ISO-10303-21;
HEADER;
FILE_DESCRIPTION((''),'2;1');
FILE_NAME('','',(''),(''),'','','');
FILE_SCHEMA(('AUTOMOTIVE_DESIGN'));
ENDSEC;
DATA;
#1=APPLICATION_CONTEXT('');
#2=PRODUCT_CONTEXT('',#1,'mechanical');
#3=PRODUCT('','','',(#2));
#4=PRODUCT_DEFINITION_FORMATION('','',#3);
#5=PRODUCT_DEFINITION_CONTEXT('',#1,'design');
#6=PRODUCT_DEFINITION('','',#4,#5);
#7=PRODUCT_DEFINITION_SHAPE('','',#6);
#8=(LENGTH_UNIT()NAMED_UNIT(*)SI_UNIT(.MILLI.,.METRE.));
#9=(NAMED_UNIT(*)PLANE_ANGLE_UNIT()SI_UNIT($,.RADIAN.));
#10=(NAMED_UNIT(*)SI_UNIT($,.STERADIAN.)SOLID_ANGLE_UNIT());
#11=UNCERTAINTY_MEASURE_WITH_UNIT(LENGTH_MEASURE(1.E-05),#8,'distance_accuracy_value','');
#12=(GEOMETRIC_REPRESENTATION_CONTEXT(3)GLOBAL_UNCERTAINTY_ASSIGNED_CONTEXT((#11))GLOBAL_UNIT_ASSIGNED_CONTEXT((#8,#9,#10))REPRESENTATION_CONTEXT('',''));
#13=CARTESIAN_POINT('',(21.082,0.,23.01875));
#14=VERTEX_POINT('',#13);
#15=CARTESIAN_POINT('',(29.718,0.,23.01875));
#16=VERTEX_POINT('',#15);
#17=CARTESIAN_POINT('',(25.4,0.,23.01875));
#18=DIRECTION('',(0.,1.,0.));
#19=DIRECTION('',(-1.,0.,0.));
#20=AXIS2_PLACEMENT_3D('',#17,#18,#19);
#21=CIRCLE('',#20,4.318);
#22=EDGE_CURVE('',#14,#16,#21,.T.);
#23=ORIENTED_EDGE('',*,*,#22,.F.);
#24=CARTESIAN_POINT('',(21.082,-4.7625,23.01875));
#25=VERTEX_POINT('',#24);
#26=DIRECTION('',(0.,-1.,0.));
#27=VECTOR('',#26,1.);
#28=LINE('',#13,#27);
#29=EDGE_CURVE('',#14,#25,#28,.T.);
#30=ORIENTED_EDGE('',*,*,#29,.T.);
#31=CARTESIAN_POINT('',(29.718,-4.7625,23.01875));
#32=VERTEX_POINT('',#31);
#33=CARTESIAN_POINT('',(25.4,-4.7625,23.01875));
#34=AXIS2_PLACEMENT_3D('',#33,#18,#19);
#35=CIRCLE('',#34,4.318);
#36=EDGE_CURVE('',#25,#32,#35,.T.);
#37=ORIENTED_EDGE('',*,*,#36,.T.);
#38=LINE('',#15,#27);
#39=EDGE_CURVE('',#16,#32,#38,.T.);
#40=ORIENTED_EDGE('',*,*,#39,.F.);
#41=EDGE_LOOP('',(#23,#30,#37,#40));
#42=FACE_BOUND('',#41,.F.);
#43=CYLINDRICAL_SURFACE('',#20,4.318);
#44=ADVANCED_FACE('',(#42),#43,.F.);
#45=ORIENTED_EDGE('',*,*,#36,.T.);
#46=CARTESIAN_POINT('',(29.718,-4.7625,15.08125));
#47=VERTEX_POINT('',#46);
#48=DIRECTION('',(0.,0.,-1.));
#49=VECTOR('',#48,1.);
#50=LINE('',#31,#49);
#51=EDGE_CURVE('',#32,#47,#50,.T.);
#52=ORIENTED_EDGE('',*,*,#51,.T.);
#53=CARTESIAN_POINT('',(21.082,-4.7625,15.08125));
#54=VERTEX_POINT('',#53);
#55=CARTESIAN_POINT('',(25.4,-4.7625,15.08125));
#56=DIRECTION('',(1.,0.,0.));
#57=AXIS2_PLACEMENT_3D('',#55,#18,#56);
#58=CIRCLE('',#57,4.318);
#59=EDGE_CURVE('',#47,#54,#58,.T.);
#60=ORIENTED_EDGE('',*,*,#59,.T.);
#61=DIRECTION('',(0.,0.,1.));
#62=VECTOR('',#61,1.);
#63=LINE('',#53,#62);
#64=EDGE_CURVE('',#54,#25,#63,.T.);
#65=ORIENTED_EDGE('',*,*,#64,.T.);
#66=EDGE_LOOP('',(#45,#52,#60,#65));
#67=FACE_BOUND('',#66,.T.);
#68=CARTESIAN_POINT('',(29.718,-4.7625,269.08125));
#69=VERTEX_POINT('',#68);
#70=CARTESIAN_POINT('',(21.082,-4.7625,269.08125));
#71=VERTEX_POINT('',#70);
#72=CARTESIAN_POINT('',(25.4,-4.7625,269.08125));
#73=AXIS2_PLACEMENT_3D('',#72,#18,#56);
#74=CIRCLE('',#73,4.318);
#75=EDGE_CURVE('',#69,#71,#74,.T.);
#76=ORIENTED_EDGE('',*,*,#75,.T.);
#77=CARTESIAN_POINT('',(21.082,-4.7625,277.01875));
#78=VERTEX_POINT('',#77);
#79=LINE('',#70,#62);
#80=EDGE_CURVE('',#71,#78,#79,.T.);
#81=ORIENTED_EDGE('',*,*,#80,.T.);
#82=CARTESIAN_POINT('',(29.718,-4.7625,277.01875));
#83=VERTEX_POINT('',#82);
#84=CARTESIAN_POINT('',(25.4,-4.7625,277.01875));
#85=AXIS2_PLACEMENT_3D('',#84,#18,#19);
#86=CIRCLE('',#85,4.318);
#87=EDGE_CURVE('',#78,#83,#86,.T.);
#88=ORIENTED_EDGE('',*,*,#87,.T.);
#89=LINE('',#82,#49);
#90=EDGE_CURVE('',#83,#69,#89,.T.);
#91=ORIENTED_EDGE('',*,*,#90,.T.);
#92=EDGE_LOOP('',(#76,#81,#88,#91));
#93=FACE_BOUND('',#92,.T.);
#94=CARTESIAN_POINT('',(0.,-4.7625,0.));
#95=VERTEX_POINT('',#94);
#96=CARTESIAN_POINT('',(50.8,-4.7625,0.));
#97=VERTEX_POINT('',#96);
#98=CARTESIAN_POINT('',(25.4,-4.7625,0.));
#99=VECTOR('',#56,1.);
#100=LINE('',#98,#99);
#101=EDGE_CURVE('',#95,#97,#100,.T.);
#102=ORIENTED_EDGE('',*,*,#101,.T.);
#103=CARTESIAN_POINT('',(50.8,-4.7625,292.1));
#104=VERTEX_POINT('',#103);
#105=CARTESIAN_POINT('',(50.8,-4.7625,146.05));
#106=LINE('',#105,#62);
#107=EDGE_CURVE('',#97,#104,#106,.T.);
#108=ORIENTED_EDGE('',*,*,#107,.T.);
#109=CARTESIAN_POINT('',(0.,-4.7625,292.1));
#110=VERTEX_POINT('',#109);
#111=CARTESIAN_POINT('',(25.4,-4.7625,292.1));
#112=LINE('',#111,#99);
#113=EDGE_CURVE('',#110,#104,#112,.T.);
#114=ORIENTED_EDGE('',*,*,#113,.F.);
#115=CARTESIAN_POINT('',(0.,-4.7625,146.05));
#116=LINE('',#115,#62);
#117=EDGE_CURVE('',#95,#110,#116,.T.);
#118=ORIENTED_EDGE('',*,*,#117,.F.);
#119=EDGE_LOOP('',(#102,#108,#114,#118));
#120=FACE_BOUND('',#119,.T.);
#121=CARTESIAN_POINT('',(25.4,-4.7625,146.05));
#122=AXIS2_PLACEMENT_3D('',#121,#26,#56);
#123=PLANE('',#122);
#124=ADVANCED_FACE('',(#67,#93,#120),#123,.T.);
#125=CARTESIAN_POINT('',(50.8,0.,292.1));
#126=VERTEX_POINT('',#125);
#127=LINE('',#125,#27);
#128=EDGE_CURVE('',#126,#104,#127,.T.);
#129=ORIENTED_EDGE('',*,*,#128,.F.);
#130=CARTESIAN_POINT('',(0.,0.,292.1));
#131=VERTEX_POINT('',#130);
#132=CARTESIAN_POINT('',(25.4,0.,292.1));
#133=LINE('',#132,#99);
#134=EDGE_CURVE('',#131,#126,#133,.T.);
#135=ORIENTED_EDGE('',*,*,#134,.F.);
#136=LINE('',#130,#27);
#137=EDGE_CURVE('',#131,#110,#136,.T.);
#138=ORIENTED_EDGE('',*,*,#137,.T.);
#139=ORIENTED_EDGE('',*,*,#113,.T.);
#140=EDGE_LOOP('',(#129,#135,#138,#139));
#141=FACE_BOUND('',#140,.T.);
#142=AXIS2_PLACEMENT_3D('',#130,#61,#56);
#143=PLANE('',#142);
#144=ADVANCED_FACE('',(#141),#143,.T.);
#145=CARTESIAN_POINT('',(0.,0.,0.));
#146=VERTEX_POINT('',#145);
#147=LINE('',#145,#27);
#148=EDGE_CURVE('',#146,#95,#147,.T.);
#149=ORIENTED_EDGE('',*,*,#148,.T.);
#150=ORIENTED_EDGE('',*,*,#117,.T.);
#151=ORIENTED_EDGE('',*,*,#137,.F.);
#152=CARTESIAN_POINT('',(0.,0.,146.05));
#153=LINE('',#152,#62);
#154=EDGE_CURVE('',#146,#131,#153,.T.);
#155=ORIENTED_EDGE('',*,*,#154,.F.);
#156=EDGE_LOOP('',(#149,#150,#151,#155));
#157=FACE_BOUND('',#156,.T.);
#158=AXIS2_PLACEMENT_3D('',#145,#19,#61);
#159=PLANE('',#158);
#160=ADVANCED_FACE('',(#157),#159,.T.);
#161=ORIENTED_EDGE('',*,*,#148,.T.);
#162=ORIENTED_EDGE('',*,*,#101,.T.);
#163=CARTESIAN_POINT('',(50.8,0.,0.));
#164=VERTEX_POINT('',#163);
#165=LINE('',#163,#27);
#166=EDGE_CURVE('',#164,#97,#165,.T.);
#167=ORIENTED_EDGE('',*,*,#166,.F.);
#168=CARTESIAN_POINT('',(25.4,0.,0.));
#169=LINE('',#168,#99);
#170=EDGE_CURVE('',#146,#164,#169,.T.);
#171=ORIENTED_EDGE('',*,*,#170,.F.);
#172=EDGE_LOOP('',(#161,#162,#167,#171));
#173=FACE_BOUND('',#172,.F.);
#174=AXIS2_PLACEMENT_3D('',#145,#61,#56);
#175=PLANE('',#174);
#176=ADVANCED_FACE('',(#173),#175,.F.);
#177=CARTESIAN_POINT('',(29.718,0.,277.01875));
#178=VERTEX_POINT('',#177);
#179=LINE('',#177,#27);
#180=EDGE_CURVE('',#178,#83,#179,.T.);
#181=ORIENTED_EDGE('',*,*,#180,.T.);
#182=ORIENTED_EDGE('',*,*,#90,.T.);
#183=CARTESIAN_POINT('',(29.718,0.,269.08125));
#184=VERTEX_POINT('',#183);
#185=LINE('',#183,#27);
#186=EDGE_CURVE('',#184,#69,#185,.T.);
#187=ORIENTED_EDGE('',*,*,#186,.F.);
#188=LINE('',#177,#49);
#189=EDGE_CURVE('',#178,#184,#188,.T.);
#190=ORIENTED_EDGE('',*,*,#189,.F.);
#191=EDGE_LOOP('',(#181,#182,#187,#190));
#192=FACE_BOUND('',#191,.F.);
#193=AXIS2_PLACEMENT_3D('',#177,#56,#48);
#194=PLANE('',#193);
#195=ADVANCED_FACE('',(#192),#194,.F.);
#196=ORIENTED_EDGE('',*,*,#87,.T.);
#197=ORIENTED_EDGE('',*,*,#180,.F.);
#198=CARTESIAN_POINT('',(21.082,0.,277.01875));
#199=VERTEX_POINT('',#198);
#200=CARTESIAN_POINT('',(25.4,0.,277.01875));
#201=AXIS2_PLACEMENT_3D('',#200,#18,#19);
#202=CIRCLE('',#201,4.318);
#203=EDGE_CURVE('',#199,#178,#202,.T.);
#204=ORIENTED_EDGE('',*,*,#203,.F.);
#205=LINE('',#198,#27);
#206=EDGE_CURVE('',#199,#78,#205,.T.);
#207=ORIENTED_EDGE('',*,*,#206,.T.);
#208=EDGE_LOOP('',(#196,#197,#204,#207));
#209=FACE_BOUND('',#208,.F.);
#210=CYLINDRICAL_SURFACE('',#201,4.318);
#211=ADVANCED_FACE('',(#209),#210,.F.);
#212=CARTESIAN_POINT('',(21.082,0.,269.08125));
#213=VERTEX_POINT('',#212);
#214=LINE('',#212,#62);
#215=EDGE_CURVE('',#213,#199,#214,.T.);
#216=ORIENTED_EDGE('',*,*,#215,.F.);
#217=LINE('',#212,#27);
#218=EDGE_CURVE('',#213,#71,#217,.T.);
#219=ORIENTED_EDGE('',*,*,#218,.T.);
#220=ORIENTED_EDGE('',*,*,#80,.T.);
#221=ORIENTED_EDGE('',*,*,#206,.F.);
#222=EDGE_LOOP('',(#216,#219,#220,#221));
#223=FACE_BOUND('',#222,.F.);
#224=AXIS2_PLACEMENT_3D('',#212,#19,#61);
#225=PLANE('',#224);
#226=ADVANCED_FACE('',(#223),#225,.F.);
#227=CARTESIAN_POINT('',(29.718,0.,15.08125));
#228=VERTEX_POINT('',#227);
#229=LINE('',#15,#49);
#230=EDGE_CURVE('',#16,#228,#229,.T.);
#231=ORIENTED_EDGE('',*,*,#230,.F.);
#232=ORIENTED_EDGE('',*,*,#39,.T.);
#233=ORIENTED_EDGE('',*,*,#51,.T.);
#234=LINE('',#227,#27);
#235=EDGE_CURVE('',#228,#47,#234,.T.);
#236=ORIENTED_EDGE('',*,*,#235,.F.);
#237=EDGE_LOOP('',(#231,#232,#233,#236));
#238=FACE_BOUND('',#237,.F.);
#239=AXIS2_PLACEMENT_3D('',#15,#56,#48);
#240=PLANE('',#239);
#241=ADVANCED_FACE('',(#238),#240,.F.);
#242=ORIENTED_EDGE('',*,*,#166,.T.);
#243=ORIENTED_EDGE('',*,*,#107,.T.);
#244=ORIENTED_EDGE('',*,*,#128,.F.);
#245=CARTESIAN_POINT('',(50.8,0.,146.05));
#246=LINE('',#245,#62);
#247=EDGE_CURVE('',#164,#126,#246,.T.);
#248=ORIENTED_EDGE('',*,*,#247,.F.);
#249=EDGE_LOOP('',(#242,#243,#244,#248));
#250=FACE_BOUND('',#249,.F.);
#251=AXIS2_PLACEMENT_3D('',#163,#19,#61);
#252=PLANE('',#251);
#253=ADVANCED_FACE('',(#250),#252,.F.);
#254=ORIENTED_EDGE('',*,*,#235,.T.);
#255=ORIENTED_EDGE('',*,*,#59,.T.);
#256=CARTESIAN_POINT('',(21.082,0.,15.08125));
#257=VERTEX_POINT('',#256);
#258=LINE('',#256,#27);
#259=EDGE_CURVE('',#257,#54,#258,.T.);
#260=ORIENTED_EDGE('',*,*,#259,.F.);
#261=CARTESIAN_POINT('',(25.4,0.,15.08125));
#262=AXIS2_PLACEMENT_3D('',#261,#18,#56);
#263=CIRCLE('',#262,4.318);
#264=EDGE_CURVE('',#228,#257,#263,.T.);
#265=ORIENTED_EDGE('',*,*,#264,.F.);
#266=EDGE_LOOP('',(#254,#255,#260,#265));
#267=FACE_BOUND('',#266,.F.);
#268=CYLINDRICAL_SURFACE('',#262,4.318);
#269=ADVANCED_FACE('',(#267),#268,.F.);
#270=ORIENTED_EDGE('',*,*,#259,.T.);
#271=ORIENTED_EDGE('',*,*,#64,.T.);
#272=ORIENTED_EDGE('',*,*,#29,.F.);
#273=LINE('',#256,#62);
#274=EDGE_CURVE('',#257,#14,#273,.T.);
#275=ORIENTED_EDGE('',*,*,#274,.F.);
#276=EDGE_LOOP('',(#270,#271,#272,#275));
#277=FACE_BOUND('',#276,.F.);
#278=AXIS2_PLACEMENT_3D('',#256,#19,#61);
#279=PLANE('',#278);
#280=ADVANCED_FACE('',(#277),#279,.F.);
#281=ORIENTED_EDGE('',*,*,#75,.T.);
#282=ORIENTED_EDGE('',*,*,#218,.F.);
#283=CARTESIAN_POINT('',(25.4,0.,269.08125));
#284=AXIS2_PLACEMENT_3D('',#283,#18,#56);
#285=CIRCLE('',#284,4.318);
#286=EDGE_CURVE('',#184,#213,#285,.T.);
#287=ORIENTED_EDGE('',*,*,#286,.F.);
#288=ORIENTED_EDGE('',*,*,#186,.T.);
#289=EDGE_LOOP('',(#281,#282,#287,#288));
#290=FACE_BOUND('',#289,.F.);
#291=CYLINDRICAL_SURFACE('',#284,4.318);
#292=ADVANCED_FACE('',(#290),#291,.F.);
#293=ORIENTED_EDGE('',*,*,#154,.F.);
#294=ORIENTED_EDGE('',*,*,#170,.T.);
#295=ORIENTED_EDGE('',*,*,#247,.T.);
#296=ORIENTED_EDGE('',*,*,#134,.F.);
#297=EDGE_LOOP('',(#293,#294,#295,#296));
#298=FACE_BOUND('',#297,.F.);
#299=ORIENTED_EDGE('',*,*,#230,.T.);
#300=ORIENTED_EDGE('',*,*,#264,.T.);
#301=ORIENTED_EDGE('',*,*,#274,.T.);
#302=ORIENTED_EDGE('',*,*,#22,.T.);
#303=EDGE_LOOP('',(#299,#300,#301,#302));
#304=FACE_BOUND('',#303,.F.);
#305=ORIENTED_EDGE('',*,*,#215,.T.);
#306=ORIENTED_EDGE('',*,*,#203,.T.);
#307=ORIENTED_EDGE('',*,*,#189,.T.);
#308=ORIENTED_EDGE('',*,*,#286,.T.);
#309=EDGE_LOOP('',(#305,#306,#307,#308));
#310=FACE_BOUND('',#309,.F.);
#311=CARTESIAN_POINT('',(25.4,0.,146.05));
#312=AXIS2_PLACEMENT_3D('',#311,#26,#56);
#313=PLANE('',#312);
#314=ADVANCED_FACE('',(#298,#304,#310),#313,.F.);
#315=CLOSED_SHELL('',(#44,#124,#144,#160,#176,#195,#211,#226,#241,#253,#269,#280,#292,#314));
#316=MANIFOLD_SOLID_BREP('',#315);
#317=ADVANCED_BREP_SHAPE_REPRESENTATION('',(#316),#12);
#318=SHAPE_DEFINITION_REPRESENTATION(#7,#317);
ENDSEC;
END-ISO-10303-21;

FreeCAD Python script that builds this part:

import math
import FreeCAD as App
import Part
import Sketcher

V = App.Vector
Q = App.Units.Quantity


def add_polygon(sketch, points):
    """Adds a closed chain of lines whose ends are joined by coincident constraints."""
    first, n = sketch.GeometryCount, len(points)
    for a, b in zip(points, points[1:] + points[:1]):
        sketch.addGeometry(Part.LineSegment(App.Vector(*a, 0), App.Vector(*b, 0)), False)
    for i in range(n):
        sketch.addConstraint(Sketcher.Constraint("Coincident", first + i, 2, first + (i + 1) % n, 1))

doc = App.newDocument("Part")
body = doc.addObject("PartDesign::Body", "Body")

sketch1 = body.newObject("Sketcher::SketchObject", "Sketch")
sketch1.AttachmentSupport = (doc.getObject("XZ_Plane"), [""])
sketch1.MapMode = "FlatFace"
add_polygon(sketch1, [(0, 292.1), (0, 0), (50.8, 0), (50.8, 292.1)])
sketch1.addGeometry(Part.LineSegment(V(29.7, 23, 0), V(29.7, 15.1, 0)), False)
sketch1.addGeometry(Part.ArcOfCircle(Part.Circle(V(25.4, 15.1, 0), V(0, 0, 1), 4.3), math.radians(180), math.radians(360)), False)
sketch1.addGeometry(Part.LineSegment(V(21.1, 15.1, 0), V(21.1, 23, 0)), False)
sketch1.addGeometry(Part.ArcOfCircle(Part.Circle(V(25.4, 23, 0), V(0, 0, 1), 4.3), math.radians(0), math.radians(180)), False)
sketch1.addGeometry(Part.LineSegment(V(29.7, 277, 0), V(29.7, 269.1, 0)), False)
sketch1.addGeometry(Part.ArcOfCircle(Part.Circle(V(25.4, 269.1, 0), V(0, 0, 1), 4.3), math.radians(180), math.radians(360)), False)
sketch1.addGeometry(Part.LineSegment(V(21.1, 269.1, 0), V(21.1, 277, 0)), False)
sketch1.addGeometry(Part.ArcOfCircle(Part.Circle(V(25.4, 277, 0), V(0, 0, 1), 4.3), math.radians(0), math.radians(180)), False)
sketch1.addConstraint(Sketcher.Constraint("Tangent", 4, 2, 5, 2))
sketch1.addConstraint(Sketcher.Constraint("Tangent", 5, 1, 6, 1))
sketch1.addConstraint(Sketcher.Constraint("Tangent", 6, 2, 7, 2))
sketch1.addConstraint(Sketcher.Constraint("Tangent", 7, 1, 4, 1))
sketch1.addConstraint(Sketcher.Constraint("Tangent", 8, 2, 9, 2))
sketch1.addConstraint(Sketcher.Constraint("Tangent", 9, 1, 10, 1))
sketch1.addConstraint(Sketcher.Constraint("Tangent", 10, 2, 11, 2))
sketch1.addConstraint(Sketcher.Constraint("Tangent", 11, 1, 8, 1))
sketch1.addConstraint(Sketcher.Constraint("Vertical", 0))
sketch1.addConstraint(Sketcher.Constraint("Horizontal", 1))
sketch1.addConstraint(Sketcher.Constraint("Vertical", 2))
sketch1.addConstraint(Sketcher.Constraint("Horizontal", 3))
sketch1.addConstraint(Sketcher.Constraint("Vertical", 4))
sketch1.addConstraint(Sketcher.Constraint("Vertical", 6))
sketch1.addConstraint(Sketcher.Constraint("Vertical", 8))
sketch1.addConstraint(Sketcher.Constraint("Vertical", 10))
sketch1.addConstraint(Sketcher.Constraint("Coincident", 0, 2, -1, 1))
sketch1.addConstraint(Sketcher.Constraint("Equal", 7, 9))
sketch1.addConstraint(Sketcher.Constraint("Vertical", 7, 3, 9, 3))
sketch1.addConstraint(Sketcher.Constraint("Equal", 6, 8))
sketch1.addConstraint(Sketcher.Constraint("DistanceX", 1, 1, 1, 2, Q("2 in")))
sketch1.addConstraint(Sketcher.Constraint("Radius", 5, Q("0.17 in")))
sketch1.addConstraint(Sketcher.Constraint("DistanceY", 0, 2, 0, 1, Q("11.5 in")))
sketch1.addConstraint(Sketcher.Constraint("DistanceX", -1, 1, 5, 3, Q("1 in")))
sketch1.addConstraint(Sketcher.Constraint("DistanceY", 5, 3, 9, 3, Q("10 in")))
sketch1.addConstraint(Sketcher.Constraint("DistanceY", 4, 2, 4, 1, Q("0.3125 in")))
sketch1.addConstraint(Sketcher.Constraint("DistanceY", -1, 1, 5, 3, Q("0.59375 in")))
pad1 = body.newObject("PartDesign::Pad", "Pad")
pad1.Profile = sketch1
pad1.Length = Q("0.1875 in")

doc.recompute()
